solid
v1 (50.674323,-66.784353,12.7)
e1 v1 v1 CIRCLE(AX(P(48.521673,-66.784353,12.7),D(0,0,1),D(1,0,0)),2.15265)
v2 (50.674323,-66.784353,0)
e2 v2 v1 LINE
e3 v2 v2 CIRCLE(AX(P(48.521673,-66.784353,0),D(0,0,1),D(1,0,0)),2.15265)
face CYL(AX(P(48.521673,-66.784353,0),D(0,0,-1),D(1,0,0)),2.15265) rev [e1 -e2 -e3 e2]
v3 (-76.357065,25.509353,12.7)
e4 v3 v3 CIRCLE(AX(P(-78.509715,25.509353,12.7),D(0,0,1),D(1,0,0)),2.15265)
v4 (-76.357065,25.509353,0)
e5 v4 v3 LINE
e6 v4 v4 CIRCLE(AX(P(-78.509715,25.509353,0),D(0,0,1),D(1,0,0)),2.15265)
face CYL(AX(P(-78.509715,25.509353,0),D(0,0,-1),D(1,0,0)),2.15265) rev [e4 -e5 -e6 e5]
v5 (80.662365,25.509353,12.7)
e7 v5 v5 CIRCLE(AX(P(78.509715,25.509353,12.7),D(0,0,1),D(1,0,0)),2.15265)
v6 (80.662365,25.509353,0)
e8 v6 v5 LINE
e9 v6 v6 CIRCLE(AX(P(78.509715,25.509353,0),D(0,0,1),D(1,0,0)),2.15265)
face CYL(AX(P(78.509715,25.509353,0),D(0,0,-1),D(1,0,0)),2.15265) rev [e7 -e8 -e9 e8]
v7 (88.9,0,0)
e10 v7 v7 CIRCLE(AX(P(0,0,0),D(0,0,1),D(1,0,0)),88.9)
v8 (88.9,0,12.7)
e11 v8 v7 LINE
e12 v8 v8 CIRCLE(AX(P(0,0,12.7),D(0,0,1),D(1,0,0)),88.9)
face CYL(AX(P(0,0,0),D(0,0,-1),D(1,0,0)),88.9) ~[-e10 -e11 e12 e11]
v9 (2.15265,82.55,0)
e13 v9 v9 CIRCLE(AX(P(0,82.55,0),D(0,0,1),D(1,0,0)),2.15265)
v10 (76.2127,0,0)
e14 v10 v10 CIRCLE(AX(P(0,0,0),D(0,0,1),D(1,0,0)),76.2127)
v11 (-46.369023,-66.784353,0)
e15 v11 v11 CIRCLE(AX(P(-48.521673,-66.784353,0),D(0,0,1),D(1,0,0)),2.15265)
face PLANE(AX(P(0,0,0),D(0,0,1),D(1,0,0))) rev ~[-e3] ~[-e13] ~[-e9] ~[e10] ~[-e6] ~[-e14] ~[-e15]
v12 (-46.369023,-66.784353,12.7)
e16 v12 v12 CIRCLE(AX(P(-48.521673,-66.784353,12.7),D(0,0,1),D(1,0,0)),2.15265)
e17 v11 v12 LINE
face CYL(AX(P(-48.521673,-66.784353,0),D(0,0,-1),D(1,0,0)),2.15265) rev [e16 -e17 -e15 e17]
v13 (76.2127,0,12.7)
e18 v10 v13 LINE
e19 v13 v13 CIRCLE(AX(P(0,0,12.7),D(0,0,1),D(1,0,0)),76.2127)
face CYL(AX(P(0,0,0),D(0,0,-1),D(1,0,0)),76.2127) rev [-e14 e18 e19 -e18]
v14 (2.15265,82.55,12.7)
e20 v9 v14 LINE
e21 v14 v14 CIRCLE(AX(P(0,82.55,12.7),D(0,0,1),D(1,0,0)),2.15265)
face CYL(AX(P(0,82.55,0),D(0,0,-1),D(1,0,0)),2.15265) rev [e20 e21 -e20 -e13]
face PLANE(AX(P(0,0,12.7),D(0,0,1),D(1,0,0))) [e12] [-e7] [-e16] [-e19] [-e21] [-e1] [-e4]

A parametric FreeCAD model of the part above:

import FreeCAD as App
import Part
import Sketcher
Q = App.Units.Quantity

doc = App.newDocument("Part")
body = doc.addObject("PartDesign::Body", "Body")

sketch1 = body.newObject("Sketcher::SketchObject", "Sketch")
sketch1.AttachmentSupport = (doc.getObject("XY_Plane"), [""])
sketch1.MapMode = "FlatFace"
sketch1.addGeometry([
    Part.Circle(App.Vector(0, 0, 0), App.Vector(0, 0, 1), 88.9),
    Part.Circle(App.Vector(-48.5, -66.8, 0), App.Vector(0, 0, 1), 2.2),
    Part.Circle(App.Vector(48.5, -66.8, 0), App.Vector(0, 0, 1), 2.2),
    Part.Circle(App.Vector(0, 0, 0), App.Vector(0, 0, 1), 76.2),
    Part.Circle(App.Vector(-78.5, 25.5, 0), App.Vector(0, 0, 1), 2.2),
    Part.Circle(App.Vector(78.5, 25.5, 0), App.Vector(0, 0, 1), 2.2),
    Part.Circle(App.Vector(0, 82.5, 0), App.Vector(0, 0, 1), 2.2),
], False)
sketch1.addConstraint([
    Sketcher.Constraint("Coincident", 0, 3, -1, 1),
    Sketcher.Constraint("Coincident", 3, 3, -1, 1),
    Sketcher.Constraint("Equal", 1, 2),
    Sketcher.Constraint("Equal", 2, 4),
    Sketcher.Constraint("Equal", 4, 5),
    Sketcher.Constraint("Equal", 5, 6),
    Sketcher.Constraint("Symmetric", 1, 3, 2, 3, -2),
    Sketcher.Constraint("Symmetric", 4, 3, 5, 3, -2),
    Sketcher.Constraint("PointOnObject", 6, 3, -2),
    Sketcher.Constraint("Diameter", 0, Q("7 in")),
    Sketcher.Constraint("Diameter", 3, Q("6.001 in")),
    Sketcher.Constraint("Diameter", 1, Q("0.1695 in")),
    Sketcher.Constraint("DistanceY", -1, 1, 6, 3, Q("3.25 in")),
    Sketcher.Constraint("DistanceX", 4, 3, 1, 3, Q("29.988042 mm")),
    Sketcher.Constraint("DistanceX", 4, 3, 5, 3, Q("157.01943 mm")),
    Sketcher.Constraint("DistanceY", 1, 3, -1, 1, Q("66.784353 mm")),
    Sketcher.Constraint("DistanceY", -1, 1, 4, 3, Q("25.509353 mm")),
])
pad1 = body.newObject("PartDesign::Pad", "Pad")
pad1.Profile = sketch1
pad1.Length = Q("0.5 in")

sketch2 = body.newObject("Sketcher::SketchObject", "Sketch001")
sketch2.AttachmentSupport = (doc.getObject("XY_Plane"), [""])
sketch2.MapMode = "FlatFace"
sketch2.addGeometry([
    Part.Circle(App.Vector(0, 0, 0), App.Vector(0, 0, 1), 88.9),
    Part.Circle(App.Vector(-48.5, -66.8, 0), App.Vector(0, 0, 1), 2.2),
    Part.Circle(App.Vector(48.5, -66.8, 0), App.Vector(0, 0, 1), 2.2),
    Part.Circle(App.Vector(0, 0, 0), App.Vector(0, 0, 1), 76.2),
    Part.Circle(App.Vector(-78.5, 25.5, 0), App.Vector(0, 0, 1), 2.2),
    Part.Circle(App.Vector(78.5, 25.5, 0), App.Vector(0, 0, 1), 2.2),
    Part.Circle(App.Vector(0, 82.5, 0), App.Vector(0, 0, 1), 2.2),
], False)
sketch2.addConstraint([
    Sketcher.Constraint("Coincident", 0, 3, -1, 1),
    Sketcher.Constraint("Coincident", 3, 3, -1, 1),
    Sketcher.Constraint("Equal", 1, 2),
    Sketcher.Constraint("Equal", 2, 4),
    Sketcher.Constraint("Equal", 4, 5),
    Sketcher.Constraint("Equal", 5, 6),
    Sketcher.Constraint("Symmetric", 1, 3, 2, 3, -2),
    Sketcher.Constraint("Symmetric", 4, 3, 5, 3, -2),
    Sketcher.Constraint("PointOnObject", 6, 3, -2),
    Sketcher.Constraint("Diameter", 0, Q("7 in")),
    Sketcher.Constraint("Diameter", 3, Q("6.001 in")),
    Sketcher.Constraint("Diameter", 1, Q("0.1695 in")),
    Sketcher.Constraint("DistanceY", -1, 1, 6, 3, Q("3.25 in")),
    Sketcher.Constraint("DistanceX", 4, 3, 1, 3, Q("29.988042 mm")),
    Sketcher.Constraint("DistanceX", 4, 3, 5, 3, Q("157.01943 mm")),
    Sketcher.Constraint("DistanceY", 1, 3, -1, 1, Q("66.784353 mm")),
    Sketcher.Constraint("DistanceY", -1, 1, 4, 3, Q("25.509353 mm")),
])
pad2 = body.newObject("PartDesign::Pad", "Pad001")
pad2.Profile = sketch2
pad2.Length = Q("0.25 in")

doc.recompute()
